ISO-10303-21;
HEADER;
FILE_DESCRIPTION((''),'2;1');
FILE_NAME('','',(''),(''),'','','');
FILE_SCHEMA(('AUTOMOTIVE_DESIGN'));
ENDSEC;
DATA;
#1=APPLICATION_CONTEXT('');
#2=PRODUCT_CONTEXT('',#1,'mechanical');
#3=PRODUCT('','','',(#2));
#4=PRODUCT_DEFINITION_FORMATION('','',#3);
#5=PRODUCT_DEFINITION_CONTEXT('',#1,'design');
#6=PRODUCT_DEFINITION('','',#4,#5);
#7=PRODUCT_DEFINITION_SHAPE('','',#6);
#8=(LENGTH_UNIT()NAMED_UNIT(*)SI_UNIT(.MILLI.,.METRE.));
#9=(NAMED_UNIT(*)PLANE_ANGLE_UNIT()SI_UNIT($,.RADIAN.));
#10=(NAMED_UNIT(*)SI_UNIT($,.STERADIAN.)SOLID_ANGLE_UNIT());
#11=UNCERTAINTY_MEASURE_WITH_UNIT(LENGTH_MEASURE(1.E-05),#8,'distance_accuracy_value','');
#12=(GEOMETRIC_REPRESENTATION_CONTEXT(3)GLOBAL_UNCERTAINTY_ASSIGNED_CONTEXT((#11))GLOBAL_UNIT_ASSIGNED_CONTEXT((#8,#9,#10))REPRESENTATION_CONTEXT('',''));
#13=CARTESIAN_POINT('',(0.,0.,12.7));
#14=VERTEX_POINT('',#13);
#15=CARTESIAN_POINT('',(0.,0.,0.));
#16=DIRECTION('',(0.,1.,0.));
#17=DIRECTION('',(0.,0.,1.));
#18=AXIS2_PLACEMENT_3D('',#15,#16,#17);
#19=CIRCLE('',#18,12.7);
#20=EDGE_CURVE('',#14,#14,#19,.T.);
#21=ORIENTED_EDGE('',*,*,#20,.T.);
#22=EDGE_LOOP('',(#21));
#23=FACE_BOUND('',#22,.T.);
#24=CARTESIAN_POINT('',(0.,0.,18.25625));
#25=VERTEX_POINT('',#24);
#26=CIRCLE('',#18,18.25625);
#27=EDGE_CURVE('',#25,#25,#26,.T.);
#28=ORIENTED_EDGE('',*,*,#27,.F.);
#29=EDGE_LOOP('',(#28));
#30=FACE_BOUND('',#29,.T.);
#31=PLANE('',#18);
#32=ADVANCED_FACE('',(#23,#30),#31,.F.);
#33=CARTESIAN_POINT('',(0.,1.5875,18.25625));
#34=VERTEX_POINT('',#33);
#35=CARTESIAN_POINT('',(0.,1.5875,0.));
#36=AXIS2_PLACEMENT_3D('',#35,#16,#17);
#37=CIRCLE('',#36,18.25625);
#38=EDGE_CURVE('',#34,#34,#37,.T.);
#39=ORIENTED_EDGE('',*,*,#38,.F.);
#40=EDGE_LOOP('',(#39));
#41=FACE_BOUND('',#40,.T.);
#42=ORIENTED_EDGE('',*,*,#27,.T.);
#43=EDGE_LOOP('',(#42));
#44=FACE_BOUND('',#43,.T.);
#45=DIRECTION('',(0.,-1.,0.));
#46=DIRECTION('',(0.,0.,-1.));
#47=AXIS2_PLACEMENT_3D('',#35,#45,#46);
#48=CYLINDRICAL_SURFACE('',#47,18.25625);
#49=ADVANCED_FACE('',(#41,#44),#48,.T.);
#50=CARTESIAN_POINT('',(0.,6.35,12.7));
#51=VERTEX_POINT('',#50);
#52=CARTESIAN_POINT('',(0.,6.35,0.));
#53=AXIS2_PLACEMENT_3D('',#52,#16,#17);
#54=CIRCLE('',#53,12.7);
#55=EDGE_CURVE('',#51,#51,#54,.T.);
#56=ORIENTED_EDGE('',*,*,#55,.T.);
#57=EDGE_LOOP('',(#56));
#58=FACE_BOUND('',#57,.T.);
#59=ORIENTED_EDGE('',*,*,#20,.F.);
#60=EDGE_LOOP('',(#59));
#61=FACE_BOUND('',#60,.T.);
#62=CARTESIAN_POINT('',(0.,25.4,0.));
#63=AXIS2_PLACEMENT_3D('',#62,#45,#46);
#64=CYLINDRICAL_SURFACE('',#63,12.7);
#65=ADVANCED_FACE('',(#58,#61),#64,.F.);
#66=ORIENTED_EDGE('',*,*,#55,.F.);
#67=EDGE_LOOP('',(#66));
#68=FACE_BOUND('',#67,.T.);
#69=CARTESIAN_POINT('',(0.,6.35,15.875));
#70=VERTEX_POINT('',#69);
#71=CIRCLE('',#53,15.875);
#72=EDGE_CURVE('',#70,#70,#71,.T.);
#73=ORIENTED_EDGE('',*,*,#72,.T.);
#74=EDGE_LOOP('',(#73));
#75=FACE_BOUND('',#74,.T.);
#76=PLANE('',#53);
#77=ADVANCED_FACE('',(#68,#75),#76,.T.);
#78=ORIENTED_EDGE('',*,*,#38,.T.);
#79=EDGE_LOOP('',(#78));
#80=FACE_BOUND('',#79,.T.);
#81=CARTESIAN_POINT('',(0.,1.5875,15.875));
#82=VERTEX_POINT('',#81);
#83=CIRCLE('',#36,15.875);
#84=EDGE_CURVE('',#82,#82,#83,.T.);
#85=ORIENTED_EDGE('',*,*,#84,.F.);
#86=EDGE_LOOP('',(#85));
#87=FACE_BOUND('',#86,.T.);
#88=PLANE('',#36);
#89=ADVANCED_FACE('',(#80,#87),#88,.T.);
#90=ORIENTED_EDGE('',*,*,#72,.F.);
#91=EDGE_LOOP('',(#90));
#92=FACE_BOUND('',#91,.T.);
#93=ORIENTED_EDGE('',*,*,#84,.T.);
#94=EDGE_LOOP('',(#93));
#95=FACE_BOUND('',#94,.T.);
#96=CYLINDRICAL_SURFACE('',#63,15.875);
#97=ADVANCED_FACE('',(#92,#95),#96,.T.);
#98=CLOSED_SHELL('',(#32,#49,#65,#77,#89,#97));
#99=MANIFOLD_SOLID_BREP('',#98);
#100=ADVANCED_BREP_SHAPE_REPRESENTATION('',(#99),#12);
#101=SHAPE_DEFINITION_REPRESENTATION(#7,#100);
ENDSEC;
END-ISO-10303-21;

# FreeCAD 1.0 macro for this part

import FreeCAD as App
import Part
import Sketcher
from FreeCAD import Vector
Q = App.Units.Quantity

doc = App.newDocument("Part")
params = doc.addObject("Spreadsheet::Sheet", "Params")
for row, (alias, value) in enumerate([
    ("sketch1_diameter", "1 in"),
    ("sketch1_diameter2", "1.25 in"),
    ("pad1_length", "1 in"),
    ("sketch2_diameter", "1.25 in"),
    ("sketch2_diameter2", "1.4375 in"),
    ("pad2_length", "0.0625 in"),
    ("sketch3_diameter", "1.4375 in"),
    ("pocket1_length", "0.75 in"),
], start=1):
    params.set(f"A{row}", alias)
    params.set(f"B{row}", "=" + value)
    params.setAlias(f"B{row}", alias)

body = doc.addObject("PartDesign::Body", "Body")

# Sketch on XZ plane
sketch1 = body.newObject("Sketcher::SketchObject", "Sketch")
sketch1.AttachmentSupport = (doc.getObject("XZ_Plane"), [""])
sketch1.MapMode = "FlatFace"
sketch1.addGeometry([
    Part.Circle(Vector(0, 0, 0), Vector(0, 0, 1), 15.875),
    Part.Circle(Vector(0, 0, 0), Vector(0, 0, 1), 12.7),
], False)
sketch1.addConstraint([
    Sketcher.Constraint("Coincident", 0, 3, -1, 1),
    Sketcher.Constraint("Coincident", 1, 3, -1, 1),
    Sketcher.Constraint("Diameter", 1, Q("1 in")),
    Sketcher.Constraint("Diameter", 0, Q("1.25 in")),
])
sketch1.setExpression("Constraints[2]", "Params.sketch1_diameter")
sketch1.setExpression("Constraints[3]", "Params.sketch1_diameter2")
pad1 = body.newObject("PartDesign::Pad", "Pad")
pad1.Profile = sketch1
pad1.setExpression("Length", "Params.pad1_length")
pad1.Reversed = True

# Sketch on XZ plane
sketch2 = body.newObject("Sketcher::SketchObject", "Sketch001")
sketch2.AttachmentSupport = (doc.getObject("XZ_Plane"), [""])
sketch2.MapMode = "FlatFace"
sketch2.addGeometry([
    Part.Circle(Vector(0, 0, 0), Vector(0, 0, 1), 18.25625),
    Part.Circle(Vector(0, 0, 0), Vector(0, 0, 1), 15.875),
], False)
sketch2.addConstraint([
    Sketcher.Constraint("Coincident", 0, 3, -1, 1),
    Sketcher.Constraint("Coincident", 1, 3, -1, 1),
    Sketcher.Constraint("Diameter", 1, Q("1.25 in")),
    Sketcher.Constraint("Diameter", 0, Q("1.4375 in")),
])
sketch2.setExpression("Constraints[2]", "Params.sketch2_diameter")
sketch2.setExpression("Constraints[3]", "Params.sketch2_diameter2")
pad2 = body.newObject("PartDesign::Pad", "Pad001")
pad2.Profile = sketch2
pad2.setExpression("Length", "Params.pad2_length")
pad2.Reversed = True

# Sketch on XZ plane
sketch3 = body.newObject("Sketcher::SketchObject", "Sketch002")
sketch3.AttachmentSupport = (doc.getObject("XZ_Plane"), [""])
sketch3.MapMode = "FlatFace"
sketch3.AttachmentOffset = App.Placement(Vector(0, 0, -1 * 25.4), App.Rotation())
sketch3.addGeometry(Part.Circle(Vector(0, 0, 0), Vector(0, 0, 1), 18.25625), False)
sketch3.addConstraint([
    Sketcher.Constraint("Coincident", 0, 3, -1, 1),
    Sketcher.Constraint("Diameter", 0, Q("1.4375 in")),
])
sketch3.setExpression("Constraints[1]", "Params.sketch3_diameter")
pocket1 = body.newObject("PartDesign::Pocket", "Pocket")
pocket1.Profile = sketch3
pocket1.setExpression("Length", "Params.pocket1_length")
pocket1.Reversed = True

doc.recompute()
